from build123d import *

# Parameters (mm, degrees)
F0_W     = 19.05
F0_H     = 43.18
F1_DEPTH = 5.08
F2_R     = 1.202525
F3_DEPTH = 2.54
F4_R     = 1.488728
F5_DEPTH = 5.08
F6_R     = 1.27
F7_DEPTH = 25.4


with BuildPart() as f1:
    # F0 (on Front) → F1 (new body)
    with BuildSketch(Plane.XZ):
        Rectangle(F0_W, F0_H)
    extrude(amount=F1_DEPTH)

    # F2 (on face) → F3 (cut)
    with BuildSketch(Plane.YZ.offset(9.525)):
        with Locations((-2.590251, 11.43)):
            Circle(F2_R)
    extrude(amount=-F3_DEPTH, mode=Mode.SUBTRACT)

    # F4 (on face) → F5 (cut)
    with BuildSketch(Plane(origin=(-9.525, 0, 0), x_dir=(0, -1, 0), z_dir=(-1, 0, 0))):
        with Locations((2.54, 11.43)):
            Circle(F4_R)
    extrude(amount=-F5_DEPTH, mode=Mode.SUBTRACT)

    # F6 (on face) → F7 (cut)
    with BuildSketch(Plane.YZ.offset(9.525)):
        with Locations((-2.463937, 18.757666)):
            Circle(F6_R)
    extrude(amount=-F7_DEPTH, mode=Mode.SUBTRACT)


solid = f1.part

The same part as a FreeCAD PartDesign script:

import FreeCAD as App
import Part
import Sketcher
Q = App.Units.Quantity

doc = App.newDocument("Part")
body = doc.addObject("PartDesign::Body", "Body")

# Sketch on XZ plane
sketch1 = doc.addObject("Sketcher::SketchObject", "Sketch")
body.addObject(sketch1)
sketch1.AttachmentSupport = (doc.XZ_Plane, [""])
sketch1.MapMode = "FlatFace"
sketch1.addGeometry([
    Part.LineSegment(App.Vector(-10, 22, 0), App.Vector(-10, -22, 0)),
    Part.LineSegment(App.Vector(-10, -22, 0), App.Vector(10, -22, 0)),
    Part.LineSegment(App.Vector(10, -22, 0), App.Vector(10, 22, 0)),
    Part.LineSegment(App.Vector(10, 22, 0), App.Vector(-10, 22, 0)),
], False)
sketch1.addConstraint([
    Sketcher.Constraint("Coincident", 0, 2, 1, 1),
    Sketcher.Constraint("Coincident", 1, 2, 2, 1),
    Sketcher.Constraint("Coincident", 2, 2, 3, 1),
    Sketcher.Constraint("Coincident", 3, 2, 0, 1),
    Sketcher.Constraint("Vertical", 0),
    Sketcher.Constraint("Horizontal", 1),
    Sketcher.Constraint("Vertical", 2),
    Sketcher.Constraint("Horizontal", 3),
    Sketcher.Constraint("Symmetric", 0, 2, 2, 2, -1, 1),
    Sketcher.Constraint("DistanceY", 0, 2, 0, 1, Q("1.7 in")),
    Sketcher.Constraint("DistanceX", 1, 1, 1, 2, Q("0.75 in")),
])
pad1 = doc.addObject("PartDesign::Pad", "Pad")
body.addObject(pad1)
pad1.Profile = sketch1
pad1.Length = Q("0.2 in")

# Sketch on YZ plane
sketch2 = doc.addObject("Sketcher::SketchObject", "Sketch001")
body.addObject(sketch2)
sketch2.AttachmentSupport = (doc.YZ_Plane, [""])
sketch2.MapMode = "FlatFace"
sketch2.AttachmentOffset = App.Placement(App.Vector(0, 0, 0.375 * 25.4), App.Rotation())
sketch2.addGeometry(Part.Circle(App.Vector(-2.6, 11.4, 0), App.Vector(0, 0, 1), 1.2), False)
sketch2.addConstraint([
    Sketcher.Constraint("DistanceY", -1, 1, 0, 3, Q("0.45 in")),
    Sketcher.Constraint("Diameter", 0, 2.40505),
    Sketcher.Constraint("DistanceX", 0, 3, -1, 1, 2.590251),
])
pocket1 = doc.addObject("PartDesign::Pocket", "Pocket")
body.addObject(pocket1)
pocket1.Profile = sketch2
pocket1.Length = Q("0.1 in")

# Sketch on YZ plane
sketch3 = doc.addObject("Sketcher::SketchObject", "Sketch002")
body.addObject(sketch3)
sketch3.AttachmentSupport = (doc.YZ_Plane, [""])
sketch3.MapMode = "FlatFace"
sketch3.AttachmentOffset = App.Placement(App.Vector(0, 0, -0.375 * 25.4), App.Rotation())
sketch3.addGeometry(Part.Circle(App.Vector(-2.5, 11.4, 0), App.Vector(0, 0, 1), 1.5), False)
sketch3.addConstraint([
    Sketcher.Constraint("DistanceX", 0, 3, -1, 1, Q("0.1 in")),
    Sketcher.Constraint("DistanceY", -1, 1, 0, 3, Q("0.45 in")),
    Sketcher.Constraint("Diameter", 0, 2.977456),
])
pocket2 = doc.addObject("PartDesign::Pocket", "Pocket001")
body.addObject(pocket2)
pocket2.Profile = sketch3
pocket2.Length = Q("0.2 in")
pocket2.Reversed = True

# Sketch on YZ plane
sketch4 = doc.addObject("Sketcher::SketchObject", "Sketch003")
body.addObject(sketch4)
sketch4.AttachmentSupport = (doc.YZ_Plane, [""])
sketch4.MapMode = "FlatFace"
sketch4.AttachmentOffset = App.Placement(App.Vector(0, 0, 0.375 * 25.4), App.Rotation())
sketch4.addGeometry(Part.Circle(App.Vector(-2.5, 18.8, 0), App.Vector(0, 0, 1), 1.3), False)
sketch4.addConstraint([
    Sketcher.Constraint("Diameter", 0, Q("0.1 in")),
    Sketcher.Constraint("DistanceX", 0, 3, -1, 1, 2.463937),
    Sketcher.Constraint("DistanceY", -1, 1, 0, 3, 18.757666),
])
pocket3 = doc.addObject("PartDesign::Pocket", "Pocket002")
body.addObject(pocket3)
pocket3.Profile = sketch4
pocket3.Length = Q("1 in")

doc.recompute()
